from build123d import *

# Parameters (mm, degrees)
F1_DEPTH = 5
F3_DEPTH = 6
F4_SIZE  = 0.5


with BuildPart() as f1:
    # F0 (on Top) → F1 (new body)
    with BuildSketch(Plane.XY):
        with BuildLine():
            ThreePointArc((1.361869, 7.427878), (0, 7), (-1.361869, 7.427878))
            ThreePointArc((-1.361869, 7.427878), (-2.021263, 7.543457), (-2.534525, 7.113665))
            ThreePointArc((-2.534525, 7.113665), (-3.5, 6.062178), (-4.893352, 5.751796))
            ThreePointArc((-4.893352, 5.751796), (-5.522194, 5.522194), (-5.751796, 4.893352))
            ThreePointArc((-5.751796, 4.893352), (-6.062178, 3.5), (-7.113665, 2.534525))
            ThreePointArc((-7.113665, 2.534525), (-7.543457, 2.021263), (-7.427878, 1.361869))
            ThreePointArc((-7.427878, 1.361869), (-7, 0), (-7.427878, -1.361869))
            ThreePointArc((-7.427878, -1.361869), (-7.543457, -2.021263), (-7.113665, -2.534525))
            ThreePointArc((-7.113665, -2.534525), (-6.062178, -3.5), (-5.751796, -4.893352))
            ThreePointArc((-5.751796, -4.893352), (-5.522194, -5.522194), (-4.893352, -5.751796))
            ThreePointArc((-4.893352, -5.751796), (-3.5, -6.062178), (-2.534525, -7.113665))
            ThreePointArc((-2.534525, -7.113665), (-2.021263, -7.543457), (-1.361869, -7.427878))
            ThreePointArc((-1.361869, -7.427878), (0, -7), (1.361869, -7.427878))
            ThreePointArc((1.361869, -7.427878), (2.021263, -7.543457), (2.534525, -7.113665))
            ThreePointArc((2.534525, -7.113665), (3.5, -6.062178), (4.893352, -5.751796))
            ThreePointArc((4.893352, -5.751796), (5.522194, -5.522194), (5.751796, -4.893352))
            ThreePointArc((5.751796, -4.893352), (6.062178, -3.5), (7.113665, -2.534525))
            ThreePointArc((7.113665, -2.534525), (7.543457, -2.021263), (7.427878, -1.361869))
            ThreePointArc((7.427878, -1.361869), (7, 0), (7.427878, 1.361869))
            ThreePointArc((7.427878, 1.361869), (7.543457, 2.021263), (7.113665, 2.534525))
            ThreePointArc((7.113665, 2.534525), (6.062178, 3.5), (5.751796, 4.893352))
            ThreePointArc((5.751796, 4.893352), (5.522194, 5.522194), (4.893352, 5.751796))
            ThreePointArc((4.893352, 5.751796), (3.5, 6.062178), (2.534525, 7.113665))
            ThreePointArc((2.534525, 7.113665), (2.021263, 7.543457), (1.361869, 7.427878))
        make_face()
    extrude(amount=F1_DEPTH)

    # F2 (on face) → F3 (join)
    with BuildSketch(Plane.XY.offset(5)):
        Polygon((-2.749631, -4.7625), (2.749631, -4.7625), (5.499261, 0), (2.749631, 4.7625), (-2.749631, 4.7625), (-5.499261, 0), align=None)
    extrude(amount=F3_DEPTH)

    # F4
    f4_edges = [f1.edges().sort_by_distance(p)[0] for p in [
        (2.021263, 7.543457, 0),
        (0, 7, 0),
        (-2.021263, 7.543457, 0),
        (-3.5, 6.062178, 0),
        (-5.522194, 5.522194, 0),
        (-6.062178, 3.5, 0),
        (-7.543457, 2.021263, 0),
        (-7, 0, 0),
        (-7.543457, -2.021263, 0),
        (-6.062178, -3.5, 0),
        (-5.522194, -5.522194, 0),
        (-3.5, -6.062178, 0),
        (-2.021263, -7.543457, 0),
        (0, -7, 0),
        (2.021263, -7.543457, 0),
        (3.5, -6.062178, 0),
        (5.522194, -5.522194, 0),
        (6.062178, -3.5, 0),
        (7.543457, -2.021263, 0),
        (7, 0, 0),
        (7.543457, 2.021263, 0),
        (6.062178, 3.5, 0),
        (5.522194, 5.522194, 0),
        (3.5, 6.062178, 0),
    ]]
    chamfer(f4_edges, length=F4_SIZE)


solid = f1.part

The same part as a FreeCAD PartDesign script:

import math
import FreeCAD as App
import Part
import Sketcher
Q = App.Units.Quantity


def edges_at(feature, points):
    """Names of the edges that pass closest to the given points."""
    edges = feature.Shape.Edges
    near = lambda p: min(range(len(edges)), key=lambda i: edges[i].distToShape(Part.Vertex(*p))[0])
    return sorted({f"Edge{near(p) + 1}" for p in points})

doc = App.newDocument("Part")
params = doc.addObject("Spreadsheet::Sheet", "Params")
for row, (alias, value) in enumerate([
    ("pad1_length", "5 mm"),
    ("pad2_length", "6 mm"),
    ("chamfer_size", "0.5 mm"),
], start=1):
    params.set(f"A{row}", alias)
    params.set(f"B{row}", "=" + value)
    params.setAlias(f"B{row}", alias)

body = doc.addObject("PartDesign::Body", "Body")

# Sketch on XY plane
sketch1 = body.newObject("Sketcher::SketchObject", "Sketch")
sketch1.AttachmentSupport = (doc.getObject("XY_Plane"), [""])
sketch1.MapMode = "FlatFace"
sketch1.addGeometry(Part.ArcOfCircle(Part.Circle(App.Vector(0, 9.4, 0), App.Vector(0, 0, 1), 2.4), math.radians(-125), math.radians(-55)), False)
sketch1.addGeometry(Part.ArcOfCircle(Part.Circle(App.Vector(-1.8, 6.8, 0), App.Vector(0, 0, 1), 0.8), math.radians(55), math.radians(155)), False)
sketch1.addGeometry(Part.ArcOfCircle(Part.Circle(App.Vector(-4.7, 8.1, 0), App.Vector(0, 0, 1), 2.4), math.radians(-95), math.radians(-25)), False)
sketch1.addGeometry(Part.ArcOfCircle(Part.Circle(App.Vector(-5, 5, 0), App.Vector(0, 0, 1), 0.8), math.radians(85), math.radians(185)), False)
sketch1.addGeometry(Part.ArcOfCircle(Part.Circle(App.Vector(-8.1, 4.7, 0), App.Vector(0, 0, 1), 2.4), math.radians(-65), math.radians(5)), False)
sketch1.addGeometry(Part.ArcOfCircle(Part.Circle(App.Vector(-6.8, 1.8, 0), App.Vector(0, 0, 1), 0.8), math.radians(115), math.radians(215)), False)
sketch1.addGeometry(Part.ArcOfCircle(Part.Circle(App.Vector(-9.4, 0, 0), App.Vector(0, 0, 1), 2.4), math.radians(-35), math.radians(35)), False)
sketch1.addGeometry(Part.ArcOfCircle(Part.Circle(App.Vector(-6.8, -1.8, 0), App.Vector(0, 0, 1), 0.8), math.radians(145), math.radians(245)), False)
sketch1.addGeometry(Part.ArcOfCircle(Part.Circle(App.Vector(-8.1, -4.7, 0), App.Vector(0, 0, 1), 2.4), math.radians(-5), math.radians(65)), False)
sketch1.addGeometry(Part.ArcOfCircle(Part.Circle(App.Vector(-5, -5, 0), App.Vector(0, 0, 1), 0.8), math.radians(175), math.radians(275)), False)
sketch1.addGeometry(Part.ArcOfCircle(Part.Circle(App.Vector(-4.7, -8.1, 0), App.Vector(0, 0, 1), 2.4), math.radians(25), math.radians(95)), False)
sketch1.addGeometry(Part.ArcOfCircle(Part.Circle(App.Vector(-1.8, -6.8, 0), App.Vector(0, 0, 1), 0.8), math.radians(-155), math.radians(-55)), False)
sketch1.addGeometry(Part.ArcOfCircle(Part.Circle(App.Vector(0, -9.4, 0), App.Vector(0, 0, 1), 2.4), math.radians(55), math.radians(125)), False)
sketch1.addGeometry(Part.ArcOfCircle(Part.Circle(App.Vector(1.8, -6.8, 0), App.Vector(0, 0, 1), 0.8), math.radians(-125), math.radians(-25)), False)
sketch1.addGeometry(Part.ArcOfCircle(Part.Circle(App.Vector(4.7, -8.1, 0), App.Vector(0, 0, 1), 2.4), math.radians(85), math.radians(155)), False)
sketch1.addGeometry(Part.ArcOfCircle(Part.Circle(App.Vector(5, -5, 0), App.Vector(0, 0, 1), 0.8), math.radians(-95), math.radians(5)), False)
sketch1.addGeometry(Part.ArcOfCircle(Part.Circle(App.Vector(8.1, -4.7, 0), App.Vector(0, 0, 1), 2.4), math.radians(115), math.radians(185)), False)
sketch1.addGeometry(Part.ArcOfCircle(Part.Circle(App.Vector(6.8, -1.8, 0), App.Vector(0, 0, 1), 0.8), math.radians(-65), math.radians(35)), False)
sketch1.addGeometry(Part.ArcOfCircle(Part.Circle(App.Vector(9.4, 0, 0), App.Vector(0, 0, 1), 2.4), math.radians(145), math.radians(215)), False)
sketch1.addGeometry(Part.ArcOfCircle(Part.Circle(App.Vector(6.8, 1.8, 0), App.Vector(0, 0, 1), 0.8), math.radians(-35), math.radians(65)), False)
sketch1.addGeometry(Part.ArcOfCircle(Part.Circle(App.Vector(8.1, 4.7, 0), App.Vector(0, 0, 1), 2.4), math.radians(175), math.radians(245)), False)
sketch1.addGeometry(Part.ArcOfCircle(Part.Circle(App.Vector(5, 5, 0), App.Vector(0, 0, 1), 0.8), math.radians(-5), math.radians(95)), False)
sketch1.addGeometry(Part.ArcOfCircle(Part.Circle(App.Vector(4.7, 8.1, 0), App.Vector(0, 0, 1), 2.4), math.radians(-155), math.radians(-85)), False)
sketch1.addGeometry(Part.ArcOfCircle(Part.Circle(App.Vector(1.8, 6.8, 0), App.Vector(0, 0, 1), 0.8), math.radians(25), math.radians(125)), False)
sketch1.addConstraint(Sketcher.Constraint("Tangent", 0, 1, 1, 1))
sketch1.addConstraint(Sketcher.Constraint("Tangent", 1, 2, 2, 2))
sketch1.addConstraint(Sketcher.Constraint("Tangent", 2, 1, 3, 1))
sketch1.addConstraint(Sketcher.Constraint("Tangent", 3, 2, 4, 2))
sketch1.addConstraint(Sketcher.Constraint("Tangent", 4, 1, 5, 1))
sketch1.addConstraint(Sketcher.Constraint("Tangent", 5, 2, 6, 2))
sketch1.addConstraint(Sketcher.Constraint("Tangent", 6, 1, 7, 1))
sketch1.addConstraint(Sketcher.Constraint("Tangent", 7, 2, 8, 2))
sketch1.addConstraint(Sketcher.Constraint("Tangent", 8, 1, 9, 1))
sketch1.addConstraint(Sketcher.Constraint("Tangent", 9, 2, 10, 2))
sketch1.addConstraint(Sketcher.Constraint("Tangent", 10, 1, 11, 1))
sketch1.addConstraint(Sketcher.Constraint("Tangent", 11, 2, 12, 2))
sketch1.addConstraint(Sketcher.Constraint("Tangent", 12, 1, 13, 1))
sketch1.addConstraint(Sketcher.Constraint("Tangent", 13, 2, 14, 2))
sketch1.addConstraint(Sketcher.Constraint("Tangent", 14, 1, 15, 1))
sketch1.addConstraint(Sketcher.Constraint("Tangent", 15, 2, 16, 2))
sketch1.addConstraint(Sketcher.Constraint("Tangent", 16, 1, 17, 1))
sketch1.addConstraint(Sketcher.Constraint("Tangent", 17, 2, 18, 2))
sketch1.addConstraint(Sketcher.Constraint("Tangent", 18, 1, 19, 1))
sketch1.addConstraint(Sketcher.Constraint("Tangent", 19, 2, 20, 2))
sketch1.addConstraint(Sketcher.Constraint("Tangent", 20, 1, 21, 1))
sketch1.addConstraint(Sketcher.Constraint("Tangent", 21, 2, 22, 2))
sketch1.addConstraint(Sketcher.Constraint("Tangent", 22, 1, 23, 1))
sketch1.addConstraint(Sketcher.Constraint("Tangent", 23, 2, 0, 2))
sketch1.addConstraint(Sketcher.Constraint("Equal", 1, 3))
sketch1.addConstraint(Sketcher.Constraint("Equal", 2, 4))
sketch1.addConstraint(Sketcher.Constraint("Equal", 3, 5))
sketch1.addConstraint(Sketcher.Constraint("Equal", 0, 6))
sketch1.addConstraint(Sketcher.Constraint("Equal", 5, 7))
sketch1.addConstraint(Sketcher.Constraint("Equal", 4, 8))
sketch1.addConstraint(Sketcher.Constraint("Equal", 7, 9))
sketch1.addConstraint(Sketcher.Constraint("Equal", 8, 10))
sketch1.addConstraint(Sketcher.Constraint("Equal", 9, 11))
sketch1.addConstraint(Sketcher.Constraint("Equal", 6, 12))
sketch1.addConstraint(Sketcher.Constraint("Equal", 11, 13))
sketch1.addConstraint(Sketcher.Constraint("Equal", 10, 14))
sketch1.addConstraint(Sketcher.Constraint("Equal", 13, 15))
sketch1.addConstraint(Sketcher.Constraint("Equal", 14, 16))
sketch1.addConstraint(Sketcher.Constraint("Equal", 15, 17))
sketch1.addConstraint(Sketcher.Constraint("Equal", 12, 18))
sketch1.addConstraint(Sketcher.Constraint("Equal", 17, 19))
sketch1.addConstraint(Sketcher.Constraint("Equal", 16, 20))
sketch1.addConstraint(Sketcher.Constraint("Equal", 19, 21))
sketch1.addConstraint(Sketcher.Constraint("Equal", 20, 22))
sketch1.addConstraint(Sketcher.Constraint("Equal", 21, 23))
sketch1.addConstraint(Sketcher.Constraint("Symmetric", 0, 3, 12, 3, -1, 1))
sketch1.addConstraint(Sketcher.Constraint("Symmetric", 2, 3, 14, 3, -1, 1))
sketch1.addConstraint(Sketcher.Constraint("Symmetric", 4, 3, 16, 3, -1, 1))
sketch1.addConstraint(Sketcher.Constraint("Symmetric", 6, 3, 18, 3, -1, 1))
sketch1.addConstraint(Sketcher.Constraint("Symmetric", 8, 3, 20, 3, -1, 1))
sketch1.addConstraint(Sketcher.Constraint("Symmetric", 10, 3, 22, 3, -1, 1))
sketch1.addConstraint(Sketcher.Constraint("Symmetric", 11, 3, 13, 3, -2))
sketch1.addConstraint(Sketcher.Constraint("Symmetric", 9, 3, 15, 3, -2))
sketch1.addConstraint(Sketcher.Constraint("Symmetric", 7, 3, 17, 3, -2))
sketch1.addConstraint(Sketcher.Constraint("Radius", 1, Q("0.79375 mm")))
sketch1.addConstraint(Sketcher.Constraint("Radius", 0, Q("2.381247 mm")))
sketch1.addConstraint(Sketcher.Constraint("Radius", 2, Q("2.381252 mm")))
sketch1.addConstraint(Sketcher.Constraint("DistanceX", 2, 3, 1, 3, Q("2.874801 mm")))
sketch1.addConstraint(Sketcher.Constraint("DistanceY", 5, 3, 4, 3, Q("2.874801 mm")))
sketch1.addConstraint(Sketcher.Constraint("DistanceX", 3, 3, -1, 1, Q("4.960928 mm")))
sketch1.addConstraint(Sketcher.Constraint("DistanceY", -1, 1, 3, 3, Q("4.960928 mm")))
sketch1.addConstraint(Sketcher.Constraint("DistanceX", 0, 1, -1, 1, Q("1.361869 mm")))
sketch1.addConstraint(Sketcher.Constraint("DistanceY", -1, 1, 3, 2, Q("4.893352 mm")))
pad1 = body.newObject("PartDesign::Pad", "Pad")
pad1.Profile = sketch1
pad1.setExpression("Length", "Params.pad1_length")

# Sketch on XY plane
sketch2 = body.newObject("Sketcher::SketchObject", "Sketch001")
sketch2.AttachmentSupport = (doc.getObject("XY_Plane"), [""])
sketch2.MapMode = "FlatFace"
sketch2.AttachmentOffset = App.Placement(App.Vector(0, 0, 5), App.Rotation())
sketch2.addGeometry(Part.LineSegment(App.Vector(-3, -5, 0), App.Vector(3, -5, 0)), False)
sketch2.addGeometry(Part.LineSegment(App.Vector(3, -5, 0), App.Vector(5, 0, 0)), False)
sketch2.addGeometry(Part.LineSegment(App.Vector(5, 0, 0), App.Vector(3, 5, 0)), False)
sketch2.addGeometry(Part.LineSegment(App.Vector(3, 5, 0), App.Vector(-3, 5, 0)), False)
sketch2.addGeometry(Part.LineSegment(App.Vector(-3, 5, 0), App.Vector(-5, 0, 0)), False)
sketch2.addGeometry(Part.LineSegment(App.Vector(-5, 0, 0), App.Vector(-3, -5, 0)), False)
sketch2.addConstraint(Sketcher.Constraint("Coincident", 0, 2, 1, 1))
sketch2.addConstraint(Sketcher.Constraint("Coincident", 1, 2, 2, 1))
sketch2.addConstraint(Sketcher.Constraint("Coincident", 2, 2, 3, 1))
sketch2.addConstraint(Sketcher.Constraint("Coincident", 3, 2, 4, 1))
sketch2.addConstraint(Sketcher.Constraint("Coincident", 4, 2, 5, 1))
sketch2.addConstraint(Sketcher.Constraint("Coincident", 5, 2, 0, 1))
sketch2.addConstraint(Sketcher.Constraint("Horizontal", 0))
sketch2.addConstraint(Sketcher.Constraint("Horizontal", 3))
sketch2.addConstraint(Sketcher.Constraint("Symmetric", 0, 2, 3, 2, -1, 1))
sketch2.addConstraint(Sketcher.Constraint("Symmetric", 1, 2, 4, 2, -1, 1))
sketch2.addConstraint(Sketcher.Constraint("PointOnObject", 1, 2, -1))
sketch2.addConstraint(Sketcher.Constraint("Parallel", 2, 5))
sketch2.addConstraint(Sketcher.Constraint("Vertical", 0, 2, 2, 2))
sketch2.addConstraint(Sketcher.Constraint("Angle", 1, Q("60.000006 deg")))
sketch2.addConstraint(Sketcher.Constraint("DistanceY", 0, 2, 2, 2, Q("9.525 mm")))
sketch2.addConstraint(Sketcher.Constraint("DistanceX", 0, 1, 0, 2, Q("5.499262 mm")))
pad2 = body.newObject("PartDesign::Pad", "Pad001")
pad2.Profile = sketch2
pad2.setExpression("Length", "Params.pad2_length")
doc.recompute()

chamfer = body.newObject("PartDesign::Chamfer", "Chamfer")
chamfer.Base = (pad2, edges_at(pad2, [
    (2.021, 7.543, 0),
    (0, 7, 0),
    (-2.021, 7.543, 0),
    (-3.5, 6.062, 0),
    (-5.522, 5.522, 0),
    (-6.062, 3.5, 0),
    (-7.543, 2.021, 0),
    (-7, 0, 0),
    (-7.543, -2.021, 0),
    (-6.062, -3.5, 0),
    (-5.522, -5.522, 0),
    (-3.5, -6.062, 0),
    (-2.021, -7.543, 0),
    (0, -7, 0),
    (2.021, -7.543, 0),
    (3.5, -6.062, 0),
    (5.522, -5.522, 0),
    (6.062, -3.5, 0),
    (7.543, -2.021, 0),
    (7, 0, 0),
    (7.543, 2.021, 0),
    (6.062, 3.5, 0),
    (5.522, 5.522, 0),
    (3.5, 6.062, 0),
]))
chamfer.setExpression("Size", "Params.chamfer_size")

doc.recompute()
